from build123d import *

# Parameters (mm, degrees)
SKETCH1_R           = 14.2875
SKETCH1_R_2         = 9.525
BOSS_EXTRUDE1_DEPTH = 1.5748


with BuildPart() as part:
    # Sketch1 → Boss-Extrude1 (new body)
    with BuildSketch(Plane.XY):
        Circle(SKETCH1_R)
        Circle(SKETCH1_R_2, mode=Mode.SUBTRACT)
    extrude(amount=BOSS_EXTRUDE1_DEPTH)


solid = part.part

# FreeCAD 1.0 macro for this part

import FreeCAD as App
import Part
import Sketcher

V = App.Vector
Q = App.Units.Quantity

doc = App.newDocument("Part")
body = doc.addObject("PartDesign::Body", "Body")

# Sketch on XY plane
sketch1 = doc.addObject("Sketcher::SketchObject", "Sketch")
body.addObject(sketch1)
sketch1.AttachmentSupport = (doc.XY_Plane, [""])
sketch1.MapMode = "FlatFace"
sketch1.addGeometry([
    Part.Circle(V(0, 0, 0), V(0, 0, 1), 14),
    Part.Circle(V(0, 0, 0), V(0, 0, 1), 10),
], False)
sketch1.addConstraint([
    Sketcher.Constraint("Coincident", 0, 3, -1, 1),
    Sketcher.Constraint("Coincident", 1, 3, -1, 1),
    Sketcher.Constraint("Diameter", 1, Q("0.75 in")),
    Sketcher.Constraint("Diameter", 0, Q("1.125 in")),
])
pad1 = doc.addObject("PartDesign::Pad", "Pad")
body.addObject(pad1)
pad1.Profile = sketch1
pad1.Length = Q("0.062 in")

doc.recompute()
